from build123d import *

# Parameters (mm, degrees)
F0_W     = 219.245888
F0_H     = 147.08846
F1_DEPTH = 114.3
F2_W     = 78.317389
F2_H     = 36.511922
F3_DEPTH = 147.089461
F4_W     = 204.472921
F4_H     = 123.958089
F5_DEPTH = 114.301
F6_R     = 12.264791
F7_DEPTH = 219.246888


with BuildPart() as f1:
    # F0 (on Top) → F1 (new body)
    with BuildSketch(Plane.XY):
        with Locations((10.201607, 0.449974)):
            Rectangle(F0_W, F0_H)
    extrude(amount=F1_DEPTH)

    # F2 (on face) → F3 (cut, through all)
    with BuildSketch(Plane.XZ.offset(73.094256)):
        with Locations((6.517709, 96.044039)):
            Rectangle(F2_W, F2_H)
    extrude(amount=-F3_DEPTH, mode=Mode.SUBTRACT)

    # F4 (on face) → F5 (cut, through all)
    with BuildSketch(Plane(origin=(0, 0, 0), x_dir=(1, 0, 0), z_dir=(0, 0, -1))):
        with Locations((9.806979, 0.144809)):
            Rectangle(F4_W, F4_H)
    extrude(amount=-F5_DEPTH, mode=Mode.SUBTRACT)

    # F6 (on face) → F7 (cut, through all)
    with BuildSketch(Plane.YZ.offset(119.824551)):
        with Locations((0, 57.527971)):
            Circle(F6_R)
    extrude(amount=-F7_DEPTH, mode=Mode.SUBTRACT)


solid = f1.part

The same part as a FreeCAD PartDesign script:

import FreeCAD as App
import Part
import Sketcher
from FreeCAD import Vector
Q = App.Units.Quantity


def add_polygon(sketch, points):
    """Adds a closed chain of lines whose ends are joined by coincident constraints."""
    first, n = sketch.GeometryCount, len(points)
    for a, b in zip(points, points[1:] + points[:1]):
        sketch.addGeometry(Part.LineSegment(App.Vector(*a, 0), App.Vector(*b, 0)), False)
    for i in range(n):
        sketch.addConstraint(Sketcher.Constraint("Coincident", first + i, 2, first + (i + 1) % n, 1))

doc = App.newDocument("Part")
body = doc.addObject("PartDesign::Body", "Body")

# Sketch on XY plane
sketch1 = body.newObject("Sketcher::SketchObject", "Sketch")
sketch1.AttachmentSupport = (doc.getObject("XY_Plane"), [""])
sketch1.MapMode = "FlatFace"
add_polygon(sketch1, [(-99.421337, 73.994204), (-99.421337, -73.094256), (119.824551, -73.094256), (119.824551, 73.994204)])  # lines 0-3
sketch1.addConstraint([
    Sketcher.Constraint("Vertical", 0),
    Sketcher.Constraint("Horizontal", 1),
    Sketcher.Constraint("Vertical", 2),
    Sketcher.Constraint("Horizontal", 3),
    Sketcher.Constraint("DistanceY", 0, 2, 0, 1, 147.08846),
    Sketcher.Constraint("DistanceX", 1, 1, 1, 2, 219.245888),
    Sketcher.Constraint("DistanceX", -1, 1, 1, 2, 119.824551),
    Sketcher.Constraint("DistanceY", 0, 2, -1, 1, 73.094256),
])
pad1 = body.newObject("PartDesign::Pad", "Pad")
pad1.Profile = sketch1
pad1.Length = Q("4.5 in")

# Sketch on XZ plane
sketch2 = body.newObject("Sketcher::SketchObject", "Sketch001")
sketch2.AttachmentSupport = (doc.getObject("XZ_Plane"), [""])
sketch2.MapMode = "FlatFace"
sketch2.AttachmentOffset = App.Placement(Vector(0, 0, 73.094256), App.Rotation())
add_polygon(sketch2, [(-32.640985, 114.3), (-32.640985, 77.788078), (45.676403, 77.788078), (45.676403, 114.3)])  # lines 0-3
sketch2.addConstraint([
    Sketcher.Constraint("Vertical", 0),
    Sketcher.Constraint("Horizontal", 1),
    Sketcher.Constraint("Vertical", 2),
    Sketcher.Constraint("Horizontal", 3),
    Sketcher.Constraint("DistanceY", -1, 1, 2, 2, Q("4.5 in")),
    Sketcher.Constraint("DistanceX", 1, 1, 1, 2, 78.317389),
    Sketcher.Constraint("DistanceY", 0, 2, 0, 1, 36.511922),
    Sketcher.Constraint("DistanceX", 0, 2, -1, 1, 32.640985),
])
pocket1 = body.newObject("PartDesign::Pocket", "Pocket")
pocket1.Profile = sketch2
pocket1.Type = "ThroughAll"

# Sketch on XY plane
sketch3 = body.newObject("Sketcher::SketchObject", "Sketch002")
sketch3.AttachmentSupport = (doc.getObject("XY_Plane"), [""])
sketch3.MapMode = "FlatFace"
add_polygon(sketch3, [(-92.429481, -62.123854), (-92.429481, 61.834235), (112.04344, 61.834235), (112.04344, -62.123854)])  # lines 0-3
sketch3.addConstraint([
    Sketcher.Constraint("Vertical", 0),
    Sketcher.Constraint("Horizontal", 1),
    Sketcher.Constraint("Vertical", 2),
    Sketcher.Constraint("Horizontal", 3),
    Sketcher.Constraint("DistanceX", 1, 1, 1, 2, 204.472921),
    Sketcher.Constraint("DistanceY", 0, 1, 0, 2, 123.958089),
    Sketcher.Constraint("DistanceX", 0, 2, -1, 1, 92.429481),
    Sketcher.Constraint("DistanceY", -1, 1, 0, 2, 61.834235),
])
pocket2 = body.newObject("PartDesign::Pocket", "Pocket001")
pocket2.Profile = sketch3
pocket2.Type = "ThroughAll"
pocket2.Reversed = True

# Sketch on YZ plane
sketch4 = body.newObject("Sketcher::SketchObject", "Sketch003")
sketch4.AttachmentSupport = (doc.getObject("YZ_Plane"), [""])
sketch4.MapMode = "FlatFace"
sketch4.AttachmentOffset = App.Placement(Vector(0, 0, 119.824551), App.Rotation())
sketch4.addGeometry(Part.Circle(Vector(0, 57.527971, 0), Vector(0, 0, 1), 12.264791), False)
sketch4.addConstraint([
    Sketcher.Constraint("PointOnObject", 0, 3, -2),
    Sketcher.Constraint("Diameter", 0, 24.529582),
    Sketcher.Constraint("DistanceY", -1, 1, 0, 3, 57.527971),
])
pocket3 = body.newObject("PartDesign::Pocket", "Pocket002")
pocket3.Profile = sketch4
pocket3.Type = "ThroughAll"

doc.recompute()
